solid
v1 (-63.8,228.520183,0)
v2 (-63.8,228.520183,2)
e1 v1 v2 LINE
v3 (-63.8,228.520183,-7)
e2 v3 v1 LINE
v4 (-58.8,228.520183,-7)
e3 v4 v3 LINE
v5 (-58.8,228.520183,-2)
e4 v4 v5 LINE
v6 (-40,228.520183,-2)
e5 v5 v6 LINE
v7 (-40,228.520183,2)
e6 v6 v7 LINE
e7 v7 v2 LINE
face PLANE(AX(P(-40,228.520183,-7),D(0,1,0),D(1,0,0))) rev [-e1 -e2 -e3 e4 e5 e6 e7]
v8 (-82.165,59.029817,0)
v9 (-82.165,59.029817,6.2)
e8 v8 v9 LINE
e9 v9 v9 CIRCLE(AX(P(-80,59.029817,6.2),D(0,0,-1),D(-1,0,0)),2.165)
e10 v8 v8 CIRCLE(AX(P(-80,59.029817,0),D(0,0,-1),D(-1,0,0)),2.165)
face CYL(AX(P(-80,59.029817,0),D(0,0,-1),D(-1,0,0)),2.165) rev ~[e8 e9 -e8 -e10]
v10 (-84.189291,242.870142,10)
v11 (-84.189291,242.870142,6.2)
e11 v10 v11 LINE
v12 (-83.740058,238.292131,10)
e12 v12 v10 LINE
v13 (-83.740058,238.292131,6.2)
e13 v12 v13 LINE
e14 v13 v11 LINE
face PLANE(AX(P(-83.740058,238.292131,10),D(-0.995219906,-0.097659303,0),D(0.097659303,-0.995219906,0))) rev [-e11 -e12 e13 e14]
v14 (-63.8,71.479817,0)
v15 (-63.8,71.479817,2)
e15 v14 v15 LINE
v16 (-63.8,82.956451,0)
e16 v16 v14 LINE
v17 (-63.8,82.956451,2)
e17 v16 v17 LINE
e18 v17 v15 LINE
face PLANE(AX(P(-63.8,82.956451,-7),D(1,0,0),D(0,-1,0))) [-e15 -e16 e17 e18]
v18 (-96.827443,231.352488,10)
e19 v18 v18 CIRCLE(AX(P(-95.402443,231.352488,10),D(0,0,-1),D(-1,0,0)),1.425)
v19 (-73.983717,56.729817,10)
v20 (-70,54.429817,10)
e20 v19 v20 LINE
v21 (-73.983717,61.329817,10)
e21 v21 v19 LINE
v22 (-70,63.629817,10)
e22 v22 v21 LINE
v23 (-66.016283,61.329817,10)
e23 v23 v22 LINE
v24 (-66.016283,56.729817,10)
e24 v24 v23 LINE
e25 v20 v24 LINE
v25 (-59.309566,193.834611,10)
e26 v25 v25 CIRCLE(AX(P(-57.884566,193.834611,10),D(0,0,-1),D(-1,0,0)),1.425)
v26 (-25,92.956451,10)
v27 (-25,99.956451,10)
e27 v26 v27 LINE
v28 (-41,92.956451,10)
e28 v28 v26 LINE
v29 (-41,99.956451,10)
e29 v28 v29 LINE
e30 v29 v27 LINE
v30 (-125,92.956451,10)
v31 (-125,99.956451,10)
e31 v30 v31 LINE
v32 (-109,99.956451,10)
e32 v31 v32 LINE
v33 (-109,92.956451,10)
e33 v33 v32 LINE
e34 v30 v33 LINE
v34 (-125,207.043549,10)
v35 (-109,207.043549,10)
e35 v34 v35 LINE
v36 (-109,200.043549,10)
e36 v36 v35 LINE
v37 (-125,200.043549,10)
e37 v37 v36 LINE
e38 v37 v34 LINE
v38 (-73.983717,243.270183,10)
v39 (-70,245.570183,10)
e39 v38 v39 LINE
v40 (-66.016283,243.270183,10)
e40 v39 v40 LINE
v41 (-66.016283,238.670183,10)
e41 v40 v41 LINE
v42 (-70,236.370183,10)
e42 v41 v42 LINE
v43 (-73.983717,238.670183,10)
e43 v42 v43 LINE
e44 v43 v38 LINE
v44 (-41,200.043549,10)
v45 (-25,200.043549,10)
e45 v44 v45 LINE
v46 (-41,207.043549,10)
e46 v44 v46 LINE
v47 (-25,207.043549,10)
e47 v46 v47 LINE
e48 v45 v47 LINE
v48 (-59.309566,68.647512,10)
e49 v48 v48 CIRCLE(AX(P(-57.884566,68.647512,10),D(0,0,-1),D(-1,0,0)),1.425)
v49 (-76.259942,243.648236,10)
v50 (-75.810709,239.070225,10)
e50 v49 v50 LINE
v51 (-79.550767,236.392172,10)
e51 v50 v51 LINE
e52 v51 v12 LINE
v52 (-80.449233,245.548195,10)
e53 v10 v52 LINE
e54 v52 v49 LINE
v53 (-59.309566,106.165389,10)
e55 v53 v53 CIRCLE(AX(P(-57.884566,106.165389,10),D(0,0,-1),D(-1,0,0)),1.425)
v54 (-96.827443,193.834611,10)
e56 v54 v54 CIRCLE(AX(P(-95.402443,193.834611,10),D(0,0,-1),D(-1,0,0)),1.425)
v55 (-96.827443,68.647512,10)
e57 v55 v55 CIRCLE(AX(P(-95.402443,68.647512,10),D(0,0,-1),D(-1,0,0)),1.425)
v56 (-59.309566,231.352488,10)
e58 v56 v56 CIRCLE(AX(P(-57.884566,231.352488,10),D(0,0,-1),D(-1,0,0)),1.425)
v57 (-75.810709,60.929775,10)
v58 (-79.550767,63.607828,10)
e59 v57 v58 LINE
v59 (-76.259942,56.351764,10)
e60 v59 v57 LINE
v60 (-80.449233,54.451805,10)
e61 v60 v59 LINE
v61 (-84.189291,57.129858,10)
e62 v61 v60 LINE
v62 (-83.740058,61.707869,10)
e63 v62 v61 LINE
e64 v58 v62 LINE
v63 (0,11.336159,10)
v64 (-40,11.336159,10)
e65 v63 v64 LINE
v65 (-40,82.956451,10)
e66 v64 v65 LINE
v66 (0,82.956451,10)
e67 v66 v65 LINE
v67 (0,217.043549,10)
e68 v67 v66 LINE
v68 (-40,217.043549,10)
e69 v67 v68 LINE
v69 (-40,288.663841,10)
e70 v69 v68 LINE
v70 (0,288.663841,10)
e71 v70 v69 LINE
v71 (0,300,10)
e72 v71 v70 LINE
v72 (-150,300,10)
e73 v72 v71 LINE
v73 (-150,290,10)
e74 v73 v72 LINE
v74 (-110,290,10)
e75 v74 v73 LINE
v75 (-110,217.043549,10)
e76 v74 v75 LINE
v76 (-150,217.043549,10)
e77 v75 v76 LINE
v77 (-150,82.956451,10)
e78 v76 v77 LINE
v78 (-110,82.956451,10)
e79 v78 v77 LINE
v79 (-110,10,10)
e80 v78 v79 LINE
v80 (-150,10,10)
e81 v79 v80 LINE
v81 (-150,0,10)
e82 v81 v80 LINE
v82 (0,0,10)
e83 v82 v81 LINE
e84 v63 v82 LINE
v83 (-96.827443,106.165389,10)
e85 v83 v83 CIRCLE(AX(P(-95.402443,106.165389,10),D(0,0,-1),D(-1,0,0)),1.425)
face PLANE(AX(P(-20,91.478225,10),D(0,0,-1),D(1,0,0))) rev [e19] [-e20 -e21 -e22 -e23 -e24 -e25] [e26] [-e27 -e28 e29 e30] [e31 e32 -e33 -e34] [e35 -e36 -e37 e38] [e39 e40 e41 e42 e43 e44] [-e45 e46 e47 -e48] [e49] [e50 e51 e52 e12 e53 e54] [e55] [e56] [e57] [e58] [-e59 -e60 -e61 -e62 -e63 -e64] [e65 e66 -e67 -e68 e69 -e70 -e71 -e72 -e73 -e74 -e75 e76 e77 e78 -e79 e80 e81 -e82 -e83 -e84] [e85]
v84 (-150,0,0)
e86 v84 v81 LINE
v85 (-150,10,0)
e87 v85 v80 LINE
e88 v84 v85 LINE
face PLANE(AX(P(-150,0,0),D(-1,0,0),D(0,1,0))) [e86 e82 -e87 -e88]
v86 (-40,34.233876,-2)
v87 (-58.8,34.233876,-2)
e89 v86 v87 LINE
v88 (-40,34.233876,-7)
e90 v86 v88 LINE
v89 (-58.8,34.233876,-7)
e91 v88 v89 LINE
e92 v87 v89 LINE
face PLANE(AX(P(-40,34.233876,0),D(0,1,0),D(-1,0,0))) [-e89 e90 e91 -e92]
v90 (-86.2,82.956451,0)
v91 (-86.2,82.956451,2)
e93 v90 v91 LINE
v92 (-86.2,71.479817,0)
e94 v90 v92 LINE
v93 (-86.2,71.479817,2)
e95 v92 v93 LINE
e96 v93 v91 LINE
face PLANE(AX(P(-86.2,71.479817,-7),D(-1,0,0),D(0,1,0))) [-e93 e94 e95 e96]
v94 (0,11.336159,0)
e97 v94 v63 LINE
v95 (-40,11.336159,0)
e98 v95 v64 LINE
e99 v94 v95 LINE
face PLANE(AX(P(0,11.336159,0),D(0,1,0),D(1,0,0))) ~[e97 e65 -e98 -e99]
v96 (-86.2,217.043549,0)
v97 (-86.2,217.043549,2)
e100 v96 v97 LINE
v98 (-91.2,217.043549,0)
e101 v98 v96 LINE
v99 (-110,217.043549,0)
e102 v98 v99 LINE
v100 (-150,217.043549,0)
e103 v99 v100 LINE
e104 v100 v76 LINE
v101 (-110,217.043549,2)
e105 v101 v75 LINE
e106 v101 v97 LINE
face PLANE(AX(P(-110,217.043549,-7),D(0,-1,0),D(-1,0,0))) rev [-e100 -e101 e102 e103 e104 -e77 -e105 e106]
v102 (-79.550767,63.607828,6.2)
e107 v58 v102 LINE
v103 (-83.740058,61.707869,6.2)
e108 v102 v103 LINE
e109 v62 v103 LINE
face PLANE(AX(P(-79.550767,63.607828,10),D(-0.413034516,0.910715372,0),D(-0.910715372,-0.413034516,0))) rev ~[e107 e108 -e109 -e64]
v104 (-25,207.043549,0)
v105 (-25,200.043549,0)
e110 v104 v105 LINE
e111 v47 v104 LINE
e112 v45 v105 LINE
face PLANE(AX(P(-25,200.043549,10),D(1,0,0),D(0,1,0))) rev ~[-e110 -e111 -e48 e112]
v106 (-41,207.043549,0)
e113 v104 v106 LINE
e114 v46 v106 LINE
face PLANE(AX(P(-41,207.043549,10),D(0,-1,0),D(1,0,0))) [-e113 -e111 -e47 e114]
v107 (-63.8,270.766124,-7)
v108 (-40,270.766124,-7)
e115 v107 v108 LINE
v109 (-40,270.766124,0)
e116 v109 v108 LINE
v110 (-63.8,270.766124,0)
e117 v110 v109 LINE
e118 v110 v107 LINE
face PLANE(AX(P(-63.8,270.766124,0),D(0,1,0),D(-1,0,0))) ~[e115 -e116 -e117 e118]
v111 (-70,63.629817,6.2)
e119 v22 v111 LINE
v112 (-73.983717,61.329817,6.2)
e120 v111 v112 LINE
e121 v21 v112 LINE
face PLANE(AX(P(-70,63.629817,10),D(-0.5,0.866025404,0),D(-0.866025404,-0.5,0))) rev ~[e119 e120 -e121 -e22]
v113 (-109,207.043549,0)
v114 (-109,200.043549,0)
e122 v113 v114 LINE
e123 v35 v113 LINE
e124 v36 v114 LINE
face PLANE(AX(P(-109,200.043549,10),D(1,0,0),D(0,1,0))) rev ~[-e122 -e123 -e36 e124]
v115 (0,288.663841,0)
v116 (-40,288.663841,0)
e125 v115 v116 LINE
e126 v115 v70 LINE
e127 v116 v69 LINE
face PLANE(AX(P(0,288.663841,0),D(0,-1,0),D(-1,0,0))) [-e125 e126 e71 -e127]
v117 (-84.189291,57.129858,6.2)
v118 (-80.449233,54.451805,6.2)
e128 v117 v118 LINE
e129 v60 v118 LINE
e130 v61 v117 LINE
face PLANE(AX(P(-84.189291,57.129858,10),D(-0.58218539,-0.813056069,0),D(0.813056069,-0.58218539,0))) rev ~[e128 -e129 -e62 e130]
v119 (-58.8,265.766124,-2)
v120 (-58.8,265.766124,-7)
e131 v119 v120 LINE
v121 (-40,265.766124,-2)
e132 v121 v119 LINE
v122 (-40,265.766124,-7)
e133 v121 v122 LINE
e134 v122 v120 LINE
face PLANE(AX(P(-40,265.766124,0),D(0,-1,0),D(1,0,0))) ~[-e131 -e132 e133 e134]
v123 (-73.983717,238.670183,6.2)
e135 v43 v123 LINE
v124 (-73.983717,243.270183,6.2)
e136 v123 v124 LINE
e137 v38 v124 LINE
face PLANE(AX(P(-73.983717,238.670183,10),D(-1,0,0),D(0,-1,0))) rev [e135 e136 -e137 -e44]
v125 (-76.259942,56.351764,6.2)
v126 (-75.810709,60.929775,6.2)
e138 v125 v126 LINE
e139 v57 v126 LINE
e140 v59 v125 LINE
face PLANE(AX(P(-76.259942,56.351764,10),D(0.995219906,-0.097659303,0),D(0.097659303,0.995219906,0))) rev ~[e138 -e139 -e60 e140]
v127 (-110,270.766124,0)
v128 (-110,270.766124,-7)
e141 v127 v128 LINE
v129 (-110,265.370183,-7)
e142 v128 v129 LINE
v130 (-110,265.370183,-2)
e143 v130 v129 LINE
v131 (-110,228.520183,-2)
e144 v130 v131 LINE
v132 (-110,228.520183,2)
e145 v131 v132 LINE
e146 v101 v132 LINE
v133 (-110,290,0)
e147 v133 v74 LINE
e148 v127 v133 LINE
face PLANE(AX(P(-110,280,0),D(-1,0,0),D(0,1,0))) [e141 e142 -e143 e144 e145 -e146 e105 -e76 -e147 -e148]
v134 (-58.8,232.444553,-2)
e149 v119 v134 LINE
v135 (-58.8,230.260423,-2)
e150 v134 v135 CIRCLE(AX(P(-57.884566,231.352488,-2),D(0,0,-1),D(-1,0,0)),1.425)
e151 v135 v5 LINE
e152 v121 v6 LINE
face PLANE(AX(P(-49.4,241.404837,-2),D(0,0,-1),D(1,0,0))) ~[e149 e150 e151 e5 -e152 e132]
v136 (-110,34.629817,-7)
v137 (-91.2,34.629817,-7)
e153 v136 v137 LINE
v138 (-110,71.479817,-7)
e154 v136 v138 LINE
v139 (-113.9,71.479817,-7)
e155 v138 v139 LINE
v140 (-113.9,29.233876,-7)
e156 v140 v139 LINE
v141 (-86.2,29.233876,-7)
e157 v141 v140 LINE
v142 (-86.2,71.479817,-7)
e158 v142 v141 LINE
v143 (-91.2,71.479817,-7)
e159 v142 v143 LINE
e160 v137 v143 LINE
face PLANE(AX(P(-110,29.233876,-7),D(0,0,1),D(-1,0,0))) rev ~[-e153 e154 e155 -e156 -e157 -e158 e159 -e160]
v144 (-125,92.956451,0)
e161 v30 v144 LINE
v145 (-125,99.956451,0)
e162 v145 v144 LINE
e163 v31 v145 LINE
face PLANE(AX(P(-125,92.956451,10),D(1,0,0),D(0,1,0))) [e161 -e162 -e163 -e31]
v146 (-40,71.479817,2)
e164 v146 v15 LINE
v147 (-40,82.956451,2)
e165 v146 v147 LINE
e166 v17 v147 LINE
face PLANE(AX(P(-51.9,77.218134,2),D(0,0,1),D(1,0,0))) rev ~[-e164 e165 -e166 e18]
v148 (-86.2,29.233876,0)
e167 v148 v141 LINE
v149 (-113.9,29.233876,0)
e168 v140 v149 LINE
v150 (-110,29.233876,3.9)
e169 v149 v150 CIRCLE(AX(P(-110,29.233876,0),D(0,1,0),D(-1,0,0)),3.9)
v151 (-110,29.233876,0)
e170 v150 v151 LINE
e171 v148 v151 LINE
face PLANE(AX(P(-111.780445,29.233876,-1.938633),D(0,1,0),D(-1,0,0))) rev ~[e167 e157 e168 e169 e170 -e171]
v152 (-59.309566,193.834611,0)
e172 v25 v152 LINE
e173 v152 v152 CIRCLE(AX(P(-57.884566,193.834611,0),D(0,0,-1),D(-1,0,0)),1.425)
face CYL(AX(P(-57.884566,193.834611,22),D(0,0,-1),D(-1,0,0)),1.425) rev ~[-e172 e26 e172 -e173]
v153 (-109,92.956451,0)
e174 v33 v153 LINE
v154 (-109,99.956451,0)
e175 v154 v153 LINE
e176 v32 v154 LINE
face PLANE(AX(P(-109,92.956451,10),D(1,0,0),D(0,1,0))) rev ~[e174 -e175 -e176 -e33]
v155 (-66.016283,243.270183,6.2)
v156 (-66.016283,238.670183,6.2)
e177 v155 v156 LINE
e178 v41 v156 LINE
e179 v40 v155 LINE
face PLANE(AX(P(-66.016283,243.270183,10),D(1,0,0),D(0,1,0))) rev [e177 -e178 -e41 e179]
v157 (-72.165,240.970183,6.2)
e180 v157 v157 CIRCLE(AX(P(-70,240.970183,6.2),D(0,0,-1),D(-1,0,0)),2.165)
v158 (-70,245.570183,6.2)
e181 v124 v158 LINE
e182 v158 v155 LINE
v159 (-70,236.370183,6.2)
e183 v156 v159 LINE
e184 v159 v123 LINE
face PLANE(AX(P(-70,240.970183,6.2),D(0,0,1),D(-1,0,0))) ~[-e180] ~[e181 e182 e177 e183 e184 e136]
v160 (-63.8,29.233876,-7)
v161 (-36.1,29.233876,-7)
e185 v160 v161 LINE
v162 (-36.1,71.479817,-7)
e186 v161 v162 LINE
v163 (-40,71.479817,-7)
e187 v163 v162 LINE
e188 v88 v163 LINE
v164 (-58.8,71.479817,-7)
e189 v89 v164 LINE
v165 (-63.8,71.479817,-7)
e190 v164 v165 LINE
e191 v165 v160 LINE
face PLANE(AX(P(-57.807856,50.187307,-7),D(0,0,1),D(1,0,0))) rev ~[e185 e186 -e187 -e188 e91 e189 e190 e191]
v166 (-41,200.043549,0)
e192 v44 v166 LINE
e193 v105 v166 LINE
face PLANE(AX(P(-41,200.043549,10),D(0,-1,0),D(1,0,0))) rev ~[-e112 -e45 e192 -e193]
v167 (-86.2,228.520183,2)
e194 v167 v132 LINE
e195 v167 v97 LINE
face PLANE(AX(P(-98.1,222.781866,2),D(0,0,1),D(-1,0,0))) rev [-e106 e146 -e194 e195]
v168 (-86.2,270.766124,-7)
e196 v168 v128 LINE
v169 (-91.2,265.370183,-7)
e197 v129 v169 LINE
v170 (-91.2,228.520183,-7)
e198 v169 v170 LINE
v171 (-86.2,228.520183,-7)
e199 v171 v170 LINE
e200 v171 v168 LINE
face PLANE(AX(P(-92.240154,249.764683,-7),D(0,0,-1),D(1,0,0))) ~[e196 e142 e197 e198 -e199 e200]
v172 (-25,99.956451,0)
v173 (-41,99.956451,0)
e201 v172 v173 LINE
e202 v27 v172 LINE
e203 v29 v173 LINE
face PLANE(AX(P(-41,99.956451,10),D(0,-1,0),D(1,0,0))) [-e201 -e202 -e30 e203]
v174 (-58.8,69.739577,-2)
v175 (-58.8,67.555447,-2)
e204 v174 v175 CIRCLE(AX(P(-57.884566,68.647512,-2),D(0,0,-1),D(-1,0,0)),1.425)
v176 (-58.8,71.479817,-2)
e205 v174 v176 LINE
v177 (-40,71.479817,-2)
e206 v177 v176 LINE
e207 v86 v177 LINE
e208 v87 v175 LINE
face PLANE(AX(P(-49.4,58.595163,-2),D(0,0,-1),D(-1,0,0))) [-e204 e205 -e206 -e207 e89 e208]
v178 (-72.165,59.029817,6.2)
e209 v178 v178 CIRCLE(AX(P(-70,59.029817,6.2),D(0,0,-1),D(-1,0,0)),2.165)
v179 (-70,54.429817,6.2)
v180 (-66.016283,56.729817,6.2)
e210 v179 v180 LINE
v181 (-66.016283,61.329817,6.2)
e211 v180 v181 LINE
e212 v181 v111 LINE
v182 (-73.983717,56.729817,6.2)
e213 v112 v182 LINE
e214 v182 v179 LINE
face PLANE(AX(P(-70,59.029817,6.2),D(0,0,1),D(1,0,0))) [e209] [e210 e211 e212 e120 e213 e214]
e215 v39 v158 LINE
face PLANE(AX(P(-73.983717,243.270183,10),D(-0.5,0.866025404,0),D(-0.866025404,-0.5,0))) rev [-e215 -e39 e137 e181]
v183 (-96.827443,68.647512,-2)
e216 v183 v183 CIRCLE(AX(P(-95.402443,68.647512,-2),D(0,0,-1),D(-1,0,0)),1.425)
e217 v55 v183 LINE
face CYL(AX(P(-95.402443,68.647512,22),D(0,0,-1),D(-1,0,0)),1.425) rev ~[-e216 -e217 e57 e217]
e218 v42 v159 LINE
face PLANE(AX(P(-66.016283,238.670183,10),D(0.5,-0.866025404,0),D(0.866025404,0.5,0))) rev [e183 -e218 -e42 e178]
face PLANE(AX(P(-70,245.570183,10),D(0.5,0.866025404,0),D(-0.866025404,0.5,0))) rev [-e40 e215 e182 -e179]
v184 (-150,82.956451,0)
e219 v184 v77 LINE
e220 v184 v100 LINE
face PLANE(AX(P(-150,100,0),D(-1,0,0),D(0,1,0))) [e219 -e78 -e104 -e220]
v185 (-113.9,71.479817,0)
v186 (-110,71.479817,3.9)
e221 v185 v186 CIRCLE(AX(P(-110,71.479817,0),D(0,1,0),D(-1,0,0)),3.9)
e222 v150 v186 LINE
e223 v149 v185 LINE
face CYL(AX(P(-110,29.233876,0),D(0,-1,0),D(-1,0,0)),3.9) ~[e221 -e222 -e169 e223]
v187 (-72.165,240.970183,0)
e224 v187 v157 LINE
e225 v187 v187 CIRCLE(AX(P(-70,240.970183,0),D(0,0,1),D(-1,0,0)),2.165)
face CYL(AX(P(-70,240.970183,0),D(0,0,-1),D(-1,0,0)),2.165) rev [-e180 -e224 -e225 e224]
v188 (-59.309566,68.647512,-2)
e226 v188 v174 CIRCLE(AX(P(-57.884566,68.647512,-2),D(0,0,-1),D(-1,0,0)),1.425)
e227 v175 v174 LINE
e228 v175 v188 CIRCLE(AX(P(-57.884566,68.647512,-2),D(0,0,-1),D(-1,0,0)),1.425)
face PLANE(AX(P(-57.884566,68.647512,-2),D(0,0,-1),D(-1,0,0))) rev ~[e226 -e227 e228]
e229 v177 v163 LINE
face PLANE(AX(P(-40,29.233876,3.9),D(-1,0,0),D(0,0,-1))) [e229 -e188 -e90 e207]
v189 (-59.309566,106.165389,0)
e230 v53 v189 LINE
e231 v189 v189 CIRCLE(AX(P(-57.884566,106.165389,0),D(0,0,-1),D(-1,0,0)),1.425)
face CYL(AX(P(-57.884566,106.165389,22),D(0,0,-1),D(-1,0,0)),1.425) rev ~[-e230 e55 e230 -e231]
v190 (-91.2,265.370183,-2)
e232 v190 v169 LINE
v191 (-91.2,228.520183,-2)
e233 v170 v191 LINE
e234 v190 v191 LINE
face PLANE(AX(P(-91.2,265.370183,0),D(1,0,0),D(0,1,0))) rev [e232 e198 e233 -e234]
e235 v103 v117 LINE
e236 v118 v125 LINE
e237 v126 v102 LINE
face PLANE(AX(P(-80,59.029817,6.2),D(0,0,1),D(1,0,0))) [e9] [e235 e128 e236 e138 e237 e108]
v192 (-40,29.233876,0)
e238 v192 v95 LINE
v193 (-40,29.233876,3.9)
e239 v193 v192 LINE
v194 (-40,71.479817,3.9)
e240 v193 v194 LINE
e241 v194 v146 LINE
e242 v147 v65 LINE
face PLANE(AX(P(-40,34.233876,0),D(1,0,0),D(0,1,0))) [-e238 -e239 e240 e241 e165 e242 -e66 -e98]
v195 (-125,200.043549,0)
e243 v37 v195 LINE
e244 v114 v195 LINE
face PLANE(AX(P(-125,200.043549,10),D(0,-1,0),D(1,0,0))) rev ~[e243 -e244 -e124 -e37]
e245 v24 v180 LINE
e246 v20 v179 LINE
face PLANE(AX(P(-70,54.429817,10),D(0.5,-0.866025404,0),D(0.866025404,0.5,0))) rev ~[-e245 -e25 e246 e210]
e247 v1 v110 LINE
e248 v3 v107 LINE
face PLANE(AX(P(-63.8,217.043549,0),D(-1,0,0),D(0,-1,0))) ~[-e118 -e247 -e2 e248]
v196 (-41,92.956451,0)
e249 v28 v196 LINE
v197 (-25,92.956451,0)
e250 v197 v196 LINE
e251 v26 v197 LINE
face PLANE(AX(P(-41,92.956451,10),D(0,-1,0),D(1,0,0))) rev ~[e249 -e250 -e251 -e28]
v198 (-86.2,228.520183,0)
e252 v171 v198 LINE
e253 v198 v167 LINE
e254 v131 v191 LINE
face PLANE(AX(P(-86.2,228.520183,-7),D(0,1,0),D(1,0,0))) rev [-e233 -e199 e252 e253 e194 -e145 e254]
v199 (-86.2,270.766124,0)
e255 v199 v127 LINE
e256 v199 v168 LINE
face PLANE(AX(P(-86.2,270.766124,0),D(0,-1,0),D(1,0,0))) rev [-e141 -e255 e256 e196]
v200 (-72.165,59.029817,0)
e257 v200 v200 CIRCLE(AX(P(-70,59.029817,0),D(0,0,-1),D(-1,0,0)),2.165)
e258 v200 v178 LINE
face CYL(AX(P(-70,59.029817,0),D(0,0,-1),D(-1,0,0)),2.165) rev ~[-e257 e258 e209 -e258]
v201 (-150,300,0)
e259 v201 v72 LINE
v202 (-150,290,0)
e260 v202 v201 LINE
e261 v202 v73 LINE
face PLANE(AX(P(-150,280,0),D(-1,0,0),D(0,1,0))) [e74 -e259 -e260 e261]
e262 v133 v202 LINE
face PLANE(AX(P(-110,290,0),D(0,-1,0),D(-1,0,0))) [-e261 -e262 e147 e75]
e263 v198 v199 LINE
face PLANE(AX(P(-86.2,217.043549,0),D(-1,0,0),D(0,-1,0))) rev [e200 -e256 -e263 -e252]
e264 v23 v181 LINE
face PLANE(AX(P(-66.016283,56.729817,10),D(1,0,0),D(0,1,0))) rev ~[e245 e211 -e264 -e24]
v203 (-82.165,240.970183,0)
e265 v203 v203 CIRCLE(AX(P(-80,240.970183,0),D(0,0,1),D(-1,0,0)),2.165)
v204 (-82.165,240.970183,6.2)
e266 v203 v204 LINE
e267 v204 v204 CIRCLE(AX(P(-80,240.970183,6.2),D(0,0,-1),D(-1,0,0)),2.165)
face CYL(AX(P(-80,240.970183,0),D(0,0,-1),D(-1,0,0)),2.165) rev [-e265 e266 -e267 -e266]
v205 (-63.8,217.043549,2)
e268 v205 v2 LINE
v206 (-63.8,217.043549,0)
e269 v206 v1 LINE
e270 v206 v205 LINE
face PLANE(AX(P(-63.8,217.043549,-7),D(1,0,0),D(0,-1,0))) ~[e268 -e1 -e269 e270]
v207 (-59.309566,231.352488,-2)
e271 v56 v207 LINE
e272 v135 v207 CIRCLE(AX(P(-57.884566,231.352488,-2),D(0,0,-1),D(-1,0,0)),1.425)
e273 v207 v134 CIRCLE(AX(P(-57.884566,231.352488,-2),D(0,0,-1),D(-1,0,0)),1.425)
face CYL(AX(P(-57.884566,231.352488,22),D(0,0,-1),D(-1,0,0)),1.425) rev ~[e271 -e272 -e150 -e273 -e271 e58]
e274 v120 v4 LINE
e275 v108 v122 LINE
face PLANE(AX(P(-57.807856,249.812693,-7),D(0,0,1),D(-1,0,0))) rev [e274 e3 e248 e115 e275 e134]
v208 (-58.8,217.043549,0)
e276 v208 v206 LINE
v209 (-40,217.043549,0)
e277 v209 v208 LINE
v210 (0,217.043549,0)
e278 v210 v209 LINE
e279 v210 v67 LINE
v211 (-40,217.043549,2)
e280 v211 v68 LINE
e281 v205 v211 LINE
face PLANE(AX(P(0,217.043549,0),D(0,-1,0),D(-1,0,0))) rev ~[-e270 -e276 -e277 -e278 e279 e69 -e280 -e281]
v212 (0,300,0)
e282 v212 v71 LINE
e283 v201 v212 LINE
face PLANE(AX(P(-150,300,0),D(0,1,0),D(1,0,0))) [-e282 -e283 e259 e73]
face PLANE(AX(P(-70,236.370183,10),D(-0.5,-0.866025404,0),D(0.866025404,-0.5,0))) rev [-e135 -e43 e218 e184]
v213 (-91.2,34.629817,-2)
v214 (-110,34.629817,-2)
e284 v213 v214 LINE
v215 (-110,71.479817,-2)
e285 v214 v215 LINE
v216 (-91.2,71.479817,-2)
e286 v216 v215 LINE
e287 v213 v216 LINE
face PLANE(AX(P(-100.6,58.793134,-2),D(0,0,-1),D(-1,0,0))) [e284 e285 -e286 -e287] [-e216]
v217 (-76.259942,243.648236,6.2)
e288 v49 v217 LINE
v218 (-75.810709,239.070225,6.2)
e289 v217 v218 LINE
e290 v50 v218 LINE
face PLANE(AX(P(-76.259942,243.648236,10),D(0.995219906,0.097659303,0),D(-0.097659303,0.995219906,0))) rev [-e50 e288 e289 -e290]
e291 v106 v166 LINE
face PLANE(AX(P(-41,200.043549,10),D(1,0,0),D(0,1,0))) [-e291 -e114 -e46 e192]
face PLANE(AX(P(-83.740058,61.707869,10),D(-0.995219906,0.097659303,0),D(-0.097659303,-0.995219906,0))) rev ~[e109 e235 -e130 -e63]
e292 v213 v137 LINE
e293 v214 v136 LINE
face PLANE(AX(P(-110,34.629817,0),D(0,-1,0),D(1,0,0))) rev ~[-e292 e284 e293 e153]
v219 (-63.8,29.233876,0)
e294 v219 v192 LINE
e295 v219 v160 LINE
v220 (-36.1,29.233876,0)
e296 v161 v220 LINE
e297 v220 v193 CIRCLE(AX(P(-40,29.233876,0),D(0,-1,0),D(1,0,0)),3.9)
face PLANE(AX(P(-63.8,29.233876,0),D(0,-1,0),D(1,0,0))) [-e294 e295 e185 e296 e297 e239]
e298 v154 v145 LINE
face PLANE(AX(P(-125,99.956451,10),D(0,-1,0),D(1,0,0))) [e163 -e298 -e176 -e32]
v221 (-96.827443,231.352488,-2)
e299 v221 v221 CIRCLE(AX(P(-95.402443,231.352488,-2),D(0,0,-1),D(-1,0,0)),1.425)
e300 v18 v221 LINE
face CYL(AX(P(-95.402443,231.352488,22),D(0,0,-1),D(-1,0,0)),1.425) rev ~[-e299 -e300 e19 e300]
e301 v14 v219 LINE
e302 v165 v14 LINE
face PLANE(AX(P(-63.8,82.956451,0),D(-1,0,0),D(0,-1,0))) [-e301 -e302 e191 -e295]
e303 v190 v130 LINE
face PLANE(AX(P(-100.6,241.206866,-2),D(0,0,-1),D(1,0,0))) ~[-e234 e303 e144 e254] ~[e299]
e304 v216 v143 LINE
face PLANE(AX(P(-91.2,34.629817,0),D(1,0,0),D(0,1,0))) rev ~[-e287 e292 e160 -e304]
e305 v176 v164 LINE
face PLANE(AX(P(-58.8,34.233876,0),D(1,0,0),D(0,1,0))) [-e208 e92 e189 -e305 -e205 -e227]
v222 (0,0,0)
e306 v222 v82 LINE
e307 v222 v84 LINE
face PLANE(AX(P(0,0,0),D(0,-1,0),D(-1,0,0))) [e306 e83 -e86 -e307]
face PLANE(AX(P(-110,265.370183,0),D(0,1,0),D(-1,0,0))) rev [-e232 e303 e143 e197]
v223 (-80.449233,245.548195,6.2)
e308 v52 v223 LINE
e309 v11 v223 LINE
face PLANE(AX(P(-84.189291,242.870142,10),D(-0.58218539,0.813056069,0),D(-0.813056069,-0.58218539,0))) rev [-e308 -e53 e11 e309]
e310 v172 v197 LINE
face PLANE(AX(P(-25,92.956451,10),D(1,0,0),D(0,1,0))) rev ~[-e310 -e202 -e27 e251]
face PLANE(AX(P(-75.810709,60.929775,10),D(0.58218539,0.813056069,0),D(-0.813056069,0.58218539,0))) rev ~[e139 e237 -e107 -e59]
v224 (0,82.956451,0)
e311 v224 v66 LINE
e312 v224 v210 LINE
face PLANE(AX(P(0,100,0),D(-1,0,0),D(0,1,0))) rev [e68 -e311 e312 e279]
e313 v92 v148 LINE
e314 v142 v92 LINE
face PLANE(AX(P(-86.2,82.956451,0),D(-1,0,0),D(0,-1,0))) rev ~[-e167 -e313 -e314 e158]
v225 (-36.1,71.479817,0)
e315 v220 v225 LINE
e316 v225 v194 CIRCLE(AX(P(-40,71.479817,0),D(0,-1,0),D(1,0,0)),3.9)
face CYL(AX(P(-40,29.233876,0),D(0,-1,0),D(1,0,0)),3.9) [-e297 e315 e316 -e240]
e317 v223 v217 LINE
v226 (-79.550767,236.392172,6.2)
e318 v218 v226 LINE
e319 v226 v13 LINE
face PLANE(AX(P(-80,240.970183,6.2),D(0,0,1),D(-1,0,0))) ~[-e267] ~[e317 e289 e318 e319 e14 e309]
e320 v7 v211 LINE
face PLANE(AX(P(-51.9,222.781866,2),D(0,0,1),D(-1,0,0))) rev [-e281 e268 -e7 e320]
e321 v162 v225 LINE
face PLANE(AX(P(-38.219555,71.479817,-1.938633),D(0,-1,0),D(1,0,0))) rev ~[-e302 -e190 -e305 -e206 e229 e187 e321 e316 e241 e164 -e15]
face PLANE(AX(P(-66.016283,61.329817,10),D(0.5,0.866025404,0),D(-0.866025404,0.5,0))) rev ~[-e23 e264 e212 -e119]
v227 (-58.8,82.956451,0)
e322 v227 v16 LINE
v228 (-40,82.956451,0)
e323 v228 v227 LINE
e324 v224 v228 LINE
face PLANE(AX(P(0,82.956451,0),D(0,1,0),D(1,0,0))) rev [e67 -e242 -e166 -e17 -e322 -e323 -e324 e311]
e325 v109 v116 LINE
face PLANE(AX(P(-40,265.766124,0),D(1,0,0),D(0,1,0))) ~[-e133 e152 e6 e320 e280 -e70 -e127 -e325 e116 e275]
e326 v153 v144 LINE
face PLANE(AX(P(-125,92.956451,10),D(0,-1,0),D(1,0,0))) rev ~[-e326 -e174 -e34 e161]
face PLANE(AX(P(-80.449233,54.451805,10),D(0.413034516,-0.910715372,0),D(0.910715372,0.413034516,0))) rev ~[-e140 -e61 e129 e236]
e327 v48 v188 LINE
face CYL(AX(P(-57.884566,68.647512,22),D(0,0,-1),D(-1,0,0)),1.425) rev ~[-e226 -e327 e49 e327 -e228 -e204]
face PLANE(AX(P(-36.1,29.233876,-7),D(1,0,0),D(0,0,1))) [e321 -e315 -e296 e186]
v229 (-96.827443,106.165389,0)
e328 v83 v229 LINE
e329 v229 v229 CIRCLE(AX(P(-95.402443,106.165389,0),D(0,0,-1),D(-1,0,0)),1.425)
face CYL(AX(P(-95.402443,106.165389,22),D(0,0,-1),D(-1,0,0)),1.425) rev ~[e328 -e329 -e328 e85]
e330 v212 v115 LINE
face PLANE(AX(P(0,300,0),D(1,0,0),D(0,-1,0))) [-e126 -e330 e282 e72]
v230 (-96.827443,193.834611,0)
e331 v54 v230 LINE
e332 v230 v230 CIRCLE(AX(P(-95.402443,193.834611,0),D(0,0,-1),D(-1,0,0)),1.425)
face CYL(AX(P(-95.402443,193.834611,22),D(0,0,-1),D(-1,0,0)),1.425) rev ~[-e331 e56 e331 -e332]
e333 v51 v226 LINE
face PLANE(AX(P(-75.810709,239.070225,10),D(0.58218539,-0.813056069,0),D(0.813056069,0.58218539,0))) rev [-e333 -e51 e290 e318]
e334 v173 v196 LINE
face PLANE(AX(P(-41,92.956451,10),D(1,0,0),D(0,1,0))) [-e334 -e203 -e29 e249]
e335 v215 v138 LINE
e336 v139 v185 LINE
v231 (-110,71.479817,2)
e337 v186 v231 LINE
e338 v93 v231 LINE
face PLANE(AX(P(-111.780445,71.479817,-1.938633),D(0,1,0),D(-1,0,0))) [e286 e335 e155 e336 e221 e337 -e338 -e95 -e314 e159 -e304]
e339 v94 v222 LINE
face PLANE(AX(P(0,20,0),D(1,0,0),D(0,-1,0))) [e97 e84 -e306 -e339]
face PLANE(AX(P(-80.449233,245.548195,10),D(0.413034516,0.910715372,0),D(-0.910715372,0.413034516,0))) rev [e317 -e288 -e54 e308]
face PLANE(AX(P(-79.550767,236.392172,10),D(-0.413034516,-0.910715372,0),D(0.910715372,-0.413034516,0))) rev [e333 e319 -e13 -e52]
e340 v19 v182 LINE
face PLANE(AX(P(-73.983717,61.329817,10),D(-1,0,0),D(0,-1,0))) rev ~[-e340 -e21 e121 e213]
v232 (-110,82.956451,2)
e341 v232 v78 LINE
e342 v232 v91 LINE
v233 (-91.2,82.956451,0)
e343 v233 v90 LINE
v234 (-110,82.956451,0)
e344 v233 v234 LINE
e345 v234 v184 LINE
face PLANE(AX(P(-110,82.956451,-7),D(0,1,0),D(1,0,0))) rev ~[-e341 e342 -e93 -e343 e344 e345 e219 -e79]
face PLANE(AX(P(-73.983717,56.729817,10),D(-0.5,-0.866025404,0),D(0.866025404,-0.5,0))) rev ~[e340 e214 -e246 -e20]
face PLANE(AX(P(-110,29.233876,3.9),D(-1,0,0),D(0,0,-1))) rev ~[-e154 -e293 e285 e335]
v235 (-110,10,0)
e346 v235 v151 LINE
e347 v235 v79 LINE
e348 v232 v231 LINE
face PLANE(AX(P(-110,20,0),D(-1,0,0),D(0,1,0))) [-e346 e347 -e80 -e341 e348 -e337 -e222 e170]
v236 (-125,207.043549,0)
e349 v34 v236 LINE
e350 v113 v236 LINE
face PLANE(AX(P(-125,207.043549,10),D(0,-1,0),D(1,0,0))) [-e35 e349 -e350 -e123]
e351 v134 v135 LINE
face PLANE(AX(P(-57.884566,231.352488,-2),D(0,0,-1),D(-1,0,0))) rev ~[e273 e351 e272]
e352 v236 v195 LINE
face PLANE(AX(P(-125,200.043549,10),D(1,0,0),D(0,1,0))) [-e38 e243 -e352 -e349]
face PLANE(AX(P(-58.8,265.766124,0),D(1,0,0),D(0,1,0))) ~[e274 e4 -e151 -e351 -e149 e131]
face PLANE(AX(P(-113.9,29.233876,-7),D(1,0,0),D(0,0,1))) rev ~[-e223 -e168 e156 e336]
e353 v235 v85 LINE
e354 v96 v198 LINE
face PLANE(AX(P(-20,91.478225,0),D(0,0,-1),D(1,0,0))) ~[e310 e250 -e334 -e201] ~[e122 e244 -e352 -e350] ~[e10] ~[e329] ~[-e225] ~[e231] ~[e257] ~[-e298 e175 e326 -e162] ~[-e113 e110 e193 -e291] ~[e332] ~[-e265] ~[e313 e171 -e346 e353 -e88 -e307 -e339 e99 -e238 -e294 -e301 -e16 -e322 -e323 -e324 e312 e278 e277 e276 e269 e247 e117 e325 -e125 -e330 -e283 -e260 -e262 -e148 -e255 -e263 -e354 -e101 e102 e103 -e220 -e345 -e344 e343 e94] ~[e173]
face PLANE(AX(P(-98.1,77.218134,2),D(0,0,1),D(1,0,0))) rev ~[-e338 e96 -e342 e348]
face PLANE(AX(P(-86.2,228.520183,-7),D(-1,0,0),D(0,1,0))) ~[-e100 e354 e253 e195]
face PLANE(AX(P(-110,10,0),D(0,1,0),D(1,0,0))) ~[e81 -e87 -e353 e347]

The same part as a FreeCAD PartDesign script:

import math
import FreeCAD as App
import Part
import Sketcher
from FreeCAD import Vector
Q = App.Units.Quantity


def add_polygon(sketch, points):
    """Adds a closed chain of lines whose ends are joined by coincident constraints."""
    first, n = sketch.GeometryCount, len(points)
    for a, b in zip(points, points[1:] + points[:1]):
        sketch.addGeometry(Part.LineSegment(App.Vector(*a, 0), App.Vector(*b, 0)), False)
    for i in range(n):
        sketch.addConstraint(Sketcher.Constraint("Coincident", first + i, 2, first + (i + 1) % n, 1))

doc = App.newDocument("Part")
body = doc.addObject("PartDesign::Body", "Body")

# Sketch on XY plane
sketch1 = body.newObject("Sketcher::SketchObject", "Sketch")
sketch1.AttachmentSupport = (doc.getObject("XY_Plane"), [""])
sketch1.MapMode = "FlatFace"
add_polygon(sketch1, [(-150, 0), (0, 0), (0, 20), (-40, 20), (-40, 100), (0, 100), (0, 200), (-40, 200), (-40, 280), (0, 280), (0, 300), (-150, 300), (-150, 280), (-110, 280), (-110, 200), (-150, 200), (-150, 100), (-110, 100), (-110, 20), (-150, 20)])  # lines 0-19
sketch1.addConstraint([
    Sketcher.Constraint("Horizontal", 0),
    Sketcher.Constraint("Vertical", 1),
    Sketcher.Constraint("Horizontal", 2),
    Sketcher.Constraint("Vertical", 3),
    Sketcher.Constraint("Horizontal", 4),
    Sketcher.Constraint("Vertical", 5),
    Sketcher.Constraint("Horizontal", 6),
    Sketcher.Constraint("Vertical", 7),
    Sketcher.Constraint("Horizontal", 8),
    Sketcher.Constraint("Vertical", 9),
    Sketcher.Constraint("Horizontal", 10),
    Sketcher.Constraint("Vertical", 11),
    Sketcher.Constraint("Horizontal", 12),
    Sketcher.Constraint("Vertical", 13),
    Sketcher.Constraint("Horizontal", 14),
    Sketcher.Constraint("Vertical", 15),
    Sketcher.Constraint("Horizontal", 16),
    Sketcher.Constraint("Vertical", 17),
    Sketcher.Constraint("Horizontal", 18),
    Sketcher.Constraint("Vertical", 19),
    Sketcher.Constraint("Coincident", 0, 2, -1, 1),
    Sketcher.Constraint("PointOnObject", 4, 2, -2),
    Sketcher.Constraint("PointOnObject", 8, 2, -2),
    Sketcher.Constraint("Horizontal", 8, 2, 11, 2),
    Sketcher.Constraint("Horizontal", 6, 2, 13, 2),
    Sketcher.Constraint("Horizontal", 4, 2, 15, 2),
    Sketcher.Constraint("Horizontal", 2, 2, 17, 2),
    Sketcher.Constraint("Vertical", 3, 2, 6, 2),
    Sketcher.Constraint("Vertical", 11, 2, 14, 2),
    Sketcher.Constraint("Vertical", 13, 2, 16, 2),
    Sketcher.Constraint("Vertical", 15, 2, 18, 2),
    Sketcher.Constraint("Equal", 8, 12),
    Sketcher.Constraint("Equal", 3, 7),
    Sketcher.Constraint("Equal", 1, 9),
    Sketcher.Constraint("DistanceX", 0, 1, 0, 2, Q("150 mm")),
    Sketcher.Constraint("DistanceX", 2, 2, 2, 1, Q("40 mm")),
    Sketcher.Constraint("DistanceY", 1, 1, 1, 2, Q("20 mm")),
    Sketcher.Constraint("DistanceY", 3, 1, 3, 2, Q("80 mm")),
    Sketcher.Constraint("DistanceY", 5, 1, 5, 2, Q("100 mm")),
])
pad1 = body.newObject("PartDesign::Pad", "Pad")
pad1.Profile = sketch1
pad1.Length = 10

# Sketch on XY plane
sketch2 = body.newObject("Sketcher::SketchObject", "Sketch001")
sketch2.AttachmentSupport = (doc.getObject("XY_Plane"), [""])
sketch2.MapMode = "FlatFace"
add_polygon(sketch2, [(-58.8, 34.233876), (-40, 34.233876), (-40, 29.233876), (-63.8, 29.233876), (-63.8, 82.956451), (-58.8, 82.956451)])  # lines 0-5
add_polygon(sketch2, [(-110, 34.629817), (-91.2, 34.629817), (-91.2, 82.956451), (-86.2, 82.956451), (-86.2, 29.233876), (-110, 29.233876)])  # lines 6-11
sketch2.addConstraint([
    Sketcher.Constraint("Horizontal", 0),
    Sketcher.Constraint("Vertical", 1),
    Sketcher.Constraint("Horizontal", 2),
    Sketcher.Constraint("Vertical", 3),
    Sketcher.Constraint("Horizontal", 4),
    Sketcher.Constraint("Vertical", 5),
    Sketcher.Constraint("Horizontal", 6),
    Sketcher.Constraint("Vertical", 7),
    Sketcher.Constraint("Horizontal", 8),
    Sketcher.Constraint("Vertical", 9),
    Sketcher.Constraint("Horizontal", 10),
    Sketcher.Constraint("Vertical", 11),
    Sketcher.Constraint("Horizontal", 4, 2, 7, 2),
    Sketcher.Constraint("Horizontal", 2, 2, 9, 2),
    Sketcher.Constraint("Equal", 0, 6),
    Sketcher.Constraint("Equal", 4, 8),
    Sketcher.Constraint("Equal", 8, 1),
    Sketcher.Constraint("DistanceX", 4, 1, 4, 2, Q("5 mm")),
    Sketcher.Constraint("DistanceX", 0, 1, 0, 2, Q("18.8 mm")),
    Sketcher.Constraint("DistanceX", 0, 2, -1, 1, Q("40 mm")),
    Sketcher.Constraint("DistanceX", 10, 2, -1, 1, Q("110 mm")),
    Sketcher.Constraint("DistanceY", 11, 1, 11, 2, Q("5.39594 mm")),
    Sketcher.Constraint("DistanceY", 3, 1, 3, 2, Q("53.722575 mm")),
    Sketcher.Constraint("DistanceY", -1, 1, 3, 2, Q("82.956451 mm")),
])
pad2 = body.newObject("PartDesign::Pad", "Pad001")
pad2.Profile = sketch2
pad2.Length = 7
pad2.Reversed = True

# Sketch on XY plane
sketch3 = body.newObject("Sketcher::SketchObject", "Sketch002")
sketch3.AttachmentSupport = (doc.getObject("XY_Plane"), [""])
sketch3.MapMode = "FlatFace"
add_polygon(sketch3, [(-40, 82.956451), (-40, 34.233876), (-58.8, 34.233876), (-58.8, 82.956451)])  # lines 0-3
add_polygon(sketch3, [(-91.2, 82.956451), (-91.2, 34.629817), (-110, 34.629817), (-110, 82.956451)])  # lines 4-7
sketch3.addConstraint([
    Sketcher.Constraint("Vertical", 0),
    Sketcher.Constraint("Horizontal", 1),
    Sketcher.Constraint("Vertical", 2),
    Sketcher.Constraint("Horizontal", 3),
    Sketcher.Constraint("Vertical", 4),
    Sketcher.Constraint("Horizontal", 5),
    Sketcher.Constraint("Vertical", 6),
    Sketcher.Constraint("Horizontal", 7),
    Sketcher.Constraint("Horizontal", 3, 2, 6, 2),
    Sketcher.Constraint("Equal", 3, 5),
    Sketcher.Constraint("DistanceX", 1, 2, 1, 1, Q("18.8 mm")),
    Sketcher.Constraint("DistanceX", 0, 2, -1, 1, Q("40 mm")),
    Sketcher.Constraint("DistanceX", 5, 2, -1, 1, Q("110 mm")),
    Sketcher.Constraint("DistanceY", 0, 2, 0, 1, Q("48.722575 mm")),
    Sketcher.Constraint("DistanceY", 4, 2, 4, 1, Q("48.326634 mm")),
    Sketcher.Constraint("DistanceY", -1, 1, 2, 2, Q("82.956451 mm")),
])
pad3 = body.newObject("PartDesign::Pad", "Pad002")
pad3.Profile = sketch3
pad3.Length = 2
pad3.Reversed = True

# Sketch on XY plane
sketch4 = body.newObject("Sketcher::SketchObject", "Sketch003")
sketch4.AttachmentSupport = (doc.getObject("XY_Plane"), [""])
sketch4.MapMode = "FlatFace"
sketch4.AttachmentOffset = App.Placement(Vector(0, 0, -7), App.Rotation())
add_polygon(sketch4, [(-63.8, 82.956451), (-40, 82.956451), (-40, 71.479817), (-63.8, 71.479817)])  # lines 0-3
add_polygon(sketch4, [(-110, 82.956451), (-86.2, 82.956451), (-86.2, 71.479817), (-110, 71.479817)])  # lines 4-7
sketch4.addConstraint([
    Sketcher.Constraint("Horizontal", 0),
    Sketcher.Constraint("Vertical", 1),
    Sketcher.Constraint("Horizontal", 2),
    Sketcher.Constraint("Vertical", 3),
    Sketcher.Constraint("Horizontal", 4),
    Sketcher.Constraint("Vertical", 5),
    Sketcher.Constraint("Horizontal", 6),
    Sketcher.Constraint("Vertical", 7),
    Sketcher.Constraint("Horizontal", 3, 2, 4, 2),
    Sketcher.Constraint("Horizontal", 2, 2, 5, 2),
    Sketcher.Constraint("Equal", 2, 4),
    Sketcher.Constraint("DistanceX", 0, 1, 0, 2, Q("23.8 mm")),
    Sketcher.Constraint("DistanceX", 0, 2, -1, 1, Q("40 mm")),
    Sketcher.Constraint("DistanceX", 6, 2, -1, 1, Q("110 mm")),
    Sketcher.Constraint("DistanceY", 1, 2, 1, 1, Q("11.476634 mm")),
    Sketcher.Constraint("DistanceY", -1, 1, 0, 2, Q("82.956451 mm")),
])
pocket1 = body.newObject("PartDesign::Pocket", "Pocket")
pocket1.Profile = sketch4
pocket1.Length = 9
pocket1.Reversed = True

# Sketch on XY plane
sketch5 = body.newObject("Sketcher::SketchObject", "Sketch004")
sketch5.AttachmentSupport = (doc.getObject("XY_Plane"), [""])
sketch5.MapMode = "FlatFace"
sketch5.addGeometry([
    Part.Circle(Vector(-70, 59.029817, 0), Vector(0, 0, 1), 2.165),
    Part.Circle(Vector(-80, 59.029817, 0), Vector(0, 0, 1), 2.165),
], False)
sketch5.addConstraint([
    Sketcher.Constraint("Equal", 0, 1),
    Sketcher.Constraint("Horizontal", 0, 3, 1, 3),
    Sketcher.Constraint("Diameter", 0, Q("4.33 mm")),
    Sketcher.Constraint("DistanceX", 0, 3, -1, 1, Q("70 mm")),
    Sketcher.Constraint("DistanceX", 1, 3, -1, 1, Q("80 mm")),
    Sketcher.Constraint("DistanceY", -1, 1, 0, 3, Q("59.029817 mm")),
])
pocket2 = body.newObject("PartDesign::Pocket", "Pocket001")
pocket2.Profile = sketch5
pocket2.Type = "ThroughAll"
pocket2.Reversed = True

# Sketch on XY plane
sketch6 = body.newObject("Sketcher::SketchObject", "Sketch005")
sketch6.AttachmentSupport = (doc.getObject("XY_Plane"), [""])
sketch6.MapMode = "FlatFace"
sketch6.AttachmentOffset = App.Placement(Vector(0, 0, 10), App.Rotation())
add_polygon(sketch6, [(-83.740058, 61.707869), (-84.189291, 57.129858), (-80.449233, 54.451805), (-76.259942, 56.351764), (-75.810709, 60.929775), (-79.550767, 63.607828)])  # lines 0-5
add_polygon(sketch6, [(-70, 63.629817), (-73.983717, 61.329817), (-73.983717, 56.729817), (-70, 54.429817), (-66.016283, 56.729817), (-66.016283, 61.329817)])  # lines 6-11
sketch6.addConstraint([
    Sketcher.Constraint("Vertical", 7),
    Sketcher.Constraint("Vertical", 10),
    Sketcher.Constraint("Parallel", 0, 3),
    Sketcher.Constraint("Parallel", 1, 4),
    Sketcher.Constraint("Parallel", 2, 5),
    Sketcher.Constraint("Parallel", 6, 9),
    Sketcher.Constraint("Parallel", 8, 11),
    Sketcher.Constraint("Horizontal", 7, 2, 9, 2),
    Sketcher.Constraint("Horizontal", 6, 2, 10, 2),
    Sketcher.Constraint("Vertical", 8, 2, 11, 2),
    Sketcher.Constraint("Equal", 0, 1),
    Sketcher.Constraint("Equal", 1, 2),
    Sketcher.Constraint("Equal", 2, 3),
    Sketcher.Constraint("Equal", 5, 6),
    Sketcher.Constraint("Angle", 6, Q("-150 deg")),
    Sketcher.Constraint("DistanceY", 7, 2, 7, 1, Q("4.6 mm")),
    Sketcher.Constraint("DistanceX", 8, 2, -1, 1, Q("70 mm")),
    Sketcher.Constraint("Distance", 0, Q("4.6 mm")),
    Sketcher.Constraint("DistanceX", 0, 2, -1, 1, Q("84.189291 mm")),
    Sketcher.Constraint("DistanceX", 3, 2, -1, 1, Q("75.810709 mm")),
    Sketcher.Constraint("DistanceY", -1, 1, 4, 2, Q("63.607828 mm")),
    Sketcher.Constraint("DistanceY", -1, 1, 5, 2, Q("61.707869 mm")),
    Sketcher.Constraint("DistanceX", 0, 2, 2, 2, Q("7.929349 mm")),
    Sketcher.Constraint("DistanceY", 3, 2, 6, 2, Q("0.400041 mm")),
])
pocket3 = body.newObject("PartDesign::Pocket", "Pocket002")
pocket3.Profile = sketch6
pocket3.Length = 3.8

# Sketch on XZ plane
sketch7 = body.newObject("Sketcher::SketchObject", "Sketch006")
sketch7.AttachmentSupport = (doc.getObject("XZ_Plane"), [""])
sketch7.MapMode = "FlatFace"
sketch7.AttachmentOffset = App.Placement(Vector(0, 0, -29.233876), App.Rotation())
sketch7.addGeometry([
    Part.LineSegment(Vector(-113.9, -7, 0), Vector(-110, -7, 0)),  # 0
    Part.LineSegment(Vector(-110, -7, 0), Vector(-110, 3.9, 0)),  # 1
    Part.ArcOfCircle(Part.Circle(Vector(-110, 0, 0), Vector(0, 0, 1), 3.9), math.radians(90), math.radians(180)),  # 2
    Part.LineSegment(Vector(-113.9, 0, 0), Vector(-113.9, -7, 0)),  # 3
    Part.LineSegment(Vector(-40, -7, 0), Vector(-36.1, -7, 0)),  # 4
    Part.LineSegment(Vector(-36.1, -7, 0), Vector(-36.1, 0, 0)),  # 5
    Part.ArcOfCircle(Part.Circle(Vector(-40, 0, 0), Vector(0, 0, 1), 3.9), math.radians(0), math.radians(90)),  # 6
    Part.LineSegment(Vector(-40, 3.9, 0), Vector(-40, -7, 0)),  # 7
], False)
sketch7.addConstraint([
    Sketcher.Constraint("Coincident", 0, 2, 1, 1),
    Sketcher.Constraint("Coincident", 1, 2, 2, 1),
    Sketcher.Constraint("Tangent", 2, 2, 3, 1),
    Sketcher.Constraint("Coincident", 3, 2, 0, 1),
    Sketcher.Constraint("Coincident", 4, 2, 5, 1),
    Sketcher.Constraint("Tangent", 5, 2, 6, 1),
    Sketcher.Constraint("Coincident", 6, 2, 7, 1),
    Sketcher.Constraint("Coincident", 7, 2, 4, 1),
    Sketcher.Constraint("Horizontal", 0),
    Sketcher.Constraint("Vertical", 1),
    Sketcher.Constraint("Vertical", 3),
    Sketcher.Constraint("Horizontal", 4),
    Sketcher.Constraint("Vertical", 5),
    Sketcher.Constraint("Vertical", 7),
    Sketcher.Constraint("Equal", 2, 6),
    Sketcher.Constraint("PointOnObject", 2, 3, -1),
    Sketcher.Constraint("PointOnObject", 6, 3, -1),
    Sketcher.Constraint("Horizontal", 3, 2, 4, 2),
    Sketcher.Constraint("Vertical", 2, 3, 0, 2),
    Sketcher.Constraint("Equal", 0, 4),
    Sketcher.Constraint("Radius", 2, Q("3.9 mm")),
    Sketcher.Constraint("DistanceY", 3, 2, 3, 1, Q("7 mm")),
    Sketcher.Constraint("DistanceX", 2, 3, -1, 1, Q("110 mm")),
    Sketcher.Constraint("DistanceX", 6, 3, -1, 1, Q("40 mm")),
])
pad4 = body.newObject("PartDesign::Pad", "Pad003")
pad4.Profile = sketch7
pad4.Length = 42.245941
pad4.Reversed = True
doc.recompute()

datumplane = body.newObject("PartDesign::Plane", "DatumPlane")
datumplane.AttachmentSupport = (doc.getObject("XZ_Plane"), [""])
datumplane.MapMode = "FlatFace"
datumplane.AttachmentOffset = App.Placement(Vector(0, 0, -150), App.Rotation())
mirrored = body.newObject("PartDesign::Mirrored", "Mirrored")
mirrored.Originals = [pad2, pad3, pocket1]
mirrored.MirrorPlane = (datumplane, [""])
body.Tip = mirrored
doc.recompute()

datumplane2 = body.newObject("PartDesign::Plane", "DatumPlane001")
datumplane2.AttachmentSupport = (doc.getObject("XZ_Plane"), [""])
datumplane2.MapMode = "FlatFace"
datumplane2.AttachmentOffset = App.Placement(Vector(0, 0, -150), App.Rotation())
mirrored2 = body.newObject("PartDesign::Mirrored", "Mirrored001")
mirrored2.Originals = [pocket2]
mirrored2.MirrorPlane = (datumplane2, [""])
body.Tip = mirrored2
doc.recompute()

datumplane3 = body.newObject("PartDesign::Plane", "DatumPlane002")
datumplane3.AttachmentSupport = (doc.getObject("XZ_Plane"), [""])
datumplane3.MapMode = "FlatFace"
datumplane3.AttachmentOffset = App.Placement(Vector(0, 0, -150), App.Rotation())
mirrored3 = body.newObject("PartDesign::Mirrored", "Mirrored002")
mirrored3.Originals = [pocket3]
mirrored3.MirrorPlane = (datumplane3, [""])
body.Tip = mirrored3

# Sketch on XY plane
sketch8 = body.newObject("Sketcher::SketchObject", "Sketch007")
sketch8.AttachmentSupport = (doc.getObject("XY_Plane"), [""])
sketch8.MapMode = "FlatFace"
add_polygon(sketch8, [(0, 288.663841), (0, 280), (-40, 280), (-40, 288.663841)])  # lines 0-3
add_polygon(sketch8, [(-110, 290), (-110, 280), (-150, 280), (-150, 290)])  # lines 4-7
sketch8.addConstraint([
    Sketcher.Constraint("Vertical", 0),
    Sketcher.Constraint("Horizontal", 1),
    Sketcher.Constraint("Vertical", 2),
    Sketcher.Constraint("Horizontal", 3),
    Sketcher.Constraint("Vertical", 4),
    Sketcher.Constraint("Horizontal", 5),
    Sketcher.Constraint("Vertical", 6),
    Sketcher.Constraint("Horizontal", 7),
    Sketcher.Constraint("PointOnObject", 0, 2, -2),
    Sketcher.Constraint("Horizontal", 1, 2, 4, 2),
    Sketcher.Constraint("Equal", 3, 5),
    Sketcher.Constraint("DistanceX", 1, 2, 1, 1, Q("40 mm")),
    Sketcher.Constraint("DistanceY", 4, 2, 4, 1, Q("10 mm")),
    Sketcher.Constraint("DistanceY", -1, 1, 0, 2, Q("280 mm")),
    Sketcher.Constraint("DistanceX", 4, 2, -1, 1, Q("110 mm")),
    Sketcher.Constraint("DistanceY", 0, 2, 0, 1, Q("8.663841 mm")),
])
pocket4 = body.newObject("PartDesign::Pocket", "Pocket003")
pocket4.Profile = sketch8
pocket4.Type = "ThroughAll"
pocket4.Reversed = True
doc.recompute()

datumplane4 = body.newObject("PartDesign::Plane", "DatumPlane003")
datumplane4.AttachmentSupport = (doc.getObject("XZ_Plane"), [""])
datumplane4.MapMode = "FlatFace"
datumplane4.AttachmentOffset = App.Placement(Vector(0, 0, -150), App.Rotation())
mirrored4 = body.newObject("PartDesign::Mirrored", "Mirrored003")
mirrored4.Originals = [pocket4]
mirrored4.MirrorPlane = (datumplane4, [""])
body.Tip = mirrored4

# Sketch on XY plane
sketch9 = body.newObject("Sketcher::SketchObject", "Sketch008")
sketch9.AttachmentSupport = (doc.getObject("XY_Plane"), [""])
sketch9.MapMode = "FlatFace"
add_polygon(sketch9, [(0, 217.043549), (0, 200), (-40, 200), (-40, 217.043549)])  # lines 0-3
add_polygon(sketch9, [(-110, 217.043549), (-110, 200), (-150, 200), (-150, 217.043549)])  # lines 4-7
sketch9.addConstraint([
    Sketcher.Constraint("Vertical", 0),
    Sketcher.Constraint("Horizontal", 1),
    Sketcher.Constraint("Vertical", 2),
    Sketcher.Constraint("Horizontal", 3),
    Sketcher.Constraint("Vertical", 4),
    Sketcher.Constraint("Horizontal", 5),
    Sketcher.Constraint("Vertical", 6),
    Sketcher.Constraint("Horizontal", 7),
    Sketcher.Constraint("PointOnObject", 0, 2, -2),
    Sketcher.Constraint("Horizontal", 1, 2, 4, 2),
    Sketcher.Constraint("Horizontal", 3, 2, 6, 2),
    Sketcher.Constraint("Equal", 3, 5),
    Sketcher.Constraint("DistanceX", 1, 2, 1, 1, Q("40 mm")),
    Sketcher.Constraint("DistanceY", -1, 1, 0, 2, Q("200 mm")),
    Sketcher.Constraint("DistanceX", 4, 2, -1, 1, Q("110 mm")),
    Sketcher.Constraint("DistanceY", 0, 2, 0, 1, Q("17.043549 mm")),
])
pad5 = body.newObject("PartDesign::Pad", "Pad004")
pad5.Profile = sketch9
pad5.Type = "UpToLast"
doc.recompute()

datumplane5 = body.newObject("PartDesign::Plane", "DatumPlane004")
datumplane5.AttachmentSupport = (doc.getObject("XZ_Plane"), [""])
datumplane5.MapMode = "FlatFace"
datumplane5.AttachmentOffset = App.Placement(Vector(0, 0, -150), App.Rotation())
mirrored5 = body.newObject("PartDesign::Mirrored", "Mirrored004")
mirrored5.Originals = [pad5]
mirrored5.MirrorPlane = (datumplane5, [""])
body.Tip = mirrored5

# Sketch on XY plane
sketch10 = body.newObject("Sketcher::SketchObject", "Sketch009")
sketch10.AttachmentSupport = (doc.getObject("XY_Plane"), [""])
sketch10.MapMode = "FlatFace"
sketch10.AttachmentOffset = App.Placement(Vector(0, 0, 10), App.Rotation())
add_polygon(sketch10, [(-125, 207.043549), (-125, 200.043549), (-109, 200.043549), (-109, 207.043549)])  # lines 0-3
sketch10.addConstraint([
    Sketcher.Constraint("Vertical", 0),
    Sketcher.Constraint("Horizontal", 1),
    Sketcher.Constraint("Vertical", 2),
    Sketcher.Constraint("Horizontal", 3),
    Sketcher.Constraint("DistanceX", 1, 1, 1, 2, Q("16 mm")),
    Sketcher.Constraint("DistanceY", 0, 2, 0, 1, Q("7 mm")),
    Sketcher.Constraint("DistanceX", 0, 2, -1, 1, Q("125 mm")),
    Sketcher.Constraint("DistanceY", -1, 1, 0, 2, Q("200.043549 mm")),
])
pocket5 = body.newObject("PartDesign::Pocket", "Pocket004")
pocket5.Profile = sketch10
pocket5.Type = "UpToFirst"

# Sketch on XY plane
sketch11 = body.newObject("Sketcher::SketchObject", "Sketch010")
sketch11.AttachmentSupport = (doc.getObject("XY_Plane"), [""])
sketch11.MapMode = "FlatFace"
sketch11.AttachmentOffset = App.Placement(Vector(0, 0, 10), App.Rotation())
add_polygon(sketch11, [(-41, 207.043549), (-41, 200.043549), (-25, 200.043549), (-25, 207.043549)])  # lines 0-3
sketch11.addConstraint([
    Sketcher.Constraint("Vertical", 0),
    Sketcher.Constraint("Horizontal", 1),
    Sketcher.Constraint("Vertical", 2),
    Sketcher.Constraint("Horizontal", 3),
    Sketcher.Constraint("DistanceX", 1, 1, 1, 2, Q("16 mm")),
    Sketcher.Constraint("DistanceY", 0, 2, 0, 1, Q("7 mm")),
    Sketcher.Constraint("DistanceX", 0, 2, -1, 1, Q("41 mm")),
    Sketcher.Constraint("DistanceY", -1, 1, 0, 2, Q("200.043549 mm")),
])
pocket6 = body.newObject("PartDesign::Pocket", "Pocket005")
pocket6.Profile = sketch11
pocket6.Type = "UpToFirst"

# Sketch on XY plane
sketch12 = body.newObject("Sketcher::SketchObject", "Sketch011")
sketch12.AttachmentSupport = (doc.getObject("XY_Plane"), [""])
sketch12.MapMode = "FlatFace"
sketch12.AttachmentOffset = App.Placement(Vector(0, 0, 10), App.Rotation())
add_polygon(sketch12, [(-125, 99.956451), (-125, 92.956451), (-109, 92.956451), (-109, 99.956451)])  # lines 0-3
sketch12.addConstraint([
    Sketcher.Constraint("Vertical", 0),
    Sketcher.Constraint("Horizontal", 1),
    Sketcher.Constraint("Vertical", 2),
    Sketcher.Constraint("Horizontal", 3),
    Sketcher.Constraint("DistanceX", 1, 1, 1, 2, Q("16 mm")),
    Sketcher.Constraint("DistanceY", 0, 2, 0, 1, Q("7 mm")),
    Sketcher.Constraint("DistanceX", 0, 2, -1, 1, Q("125 mm")),
    Sketcher.Constraint("DistanceY", -1, 1, 0, 2, Q("92.956451 mm")),
])
pocket7 = body.newObject("PartDesign::Pocket", "Pocket006")
pocket7.Profile = sketch12
pocket7.Type = "UpToFirst"

# Sketch on XY plane
sketch13 = body.newObject("Sketcher::SketchObject", "Sketch012")
sketch13.AttachmentSupport = (doc.getObject("XY_Plane"), [""])
sketch13.MapMode = "FlatFace"
sketch13.AttachmentOffset = App.Placement(Vector(0, 0, 10), App.Rotation())
add_polygon(sketch13, [(-41, 99.956451), (-41, 92.956451), (-25, 92.956451), (-25, 99.956451)])  # lines 0-3
sketch13.addConstraint([
    Sketcher.Constraint("Vertical", 0),
    Sketcher.Constraint("Horizontal", 1),
    Sketcher.Constraint("Vertical", 2),
    Sketcher.Constraint("Horizontal", 3),
    Sketcher.Constraint("DistanceX", 1, 1, 1, 2, Q("16 mm")),
    Sketcher.Constraint("DistanceY", 0, 2, 0, 1, Q("7 mm")),
    Sketcher.Constraint("DistanceX", 0, 2, -1, 1, Q("41 mm")),
    Sketcher.Constraint("DistanceY", -1, 1, 0, 2, Q("92.956451 mm")),
])
pocket8 = body.newObject("PartDesign::Pocket", "Pocket007")
pocket8.Profile = sketch13
pocket8.Type = "UpToFirst"

# Sketch on XY plane
sketch14 = body.newObject("Sketcher::SketchObject", "Sketch013")
sketch14.AttachmentSupport = (doc.getObject("XY_Plane"), [""])
sketch14.MapMode = "FlatFace"
sketch14.AttachmentOffset = App.Placement(Vector(0, 0, 10), App.Rotation())
sketch14.addGeometry([
    Part.Circle(Vector(-57.884566, 231.352488, 0), Vector(0, 0, 1), 1.425),  # 0
    Part.Circle(Vector(-95.402443, 231.352488, 0), Vector(0, 0, 1), 1.425),  # 1
    Part.Circle(Vector(-95.402443, 193.834611, 0), Vector(0, 0, 1), 1.425),  # 2
    Part.Circle(Vector(-57.884566, 193.834611, 0), Vector(0, 0, 1), 1.425),  # 3
    Part.Circle(Vector(-95.402443, 68.647512, 0), Vector(0, 0, 1), 1.425),  # 4
    Part.Circle(Vector(-57.884566, 106.165389, 0), Vector(0, 0, 1), 1.425),  # 5
    Part.Circle(Vector(-57.884566, 68.647512, 0), Vector(0, 0, 1), 1.425),  # 6
    Part.Circle(Vector(-95.402443, 106.165389, 0), Vector(0, 0, 1), 1.425),  # 7
], False)
sketch14.addConstraint([
    Sketcher.Constraint("Equal", 0, 1),
    Sketcher.Constraint("Equal", 1, 2),
    Sketcher.Constraint("Equal", 2, 3),
    Sketcher.Constraint("Equal", 3, 4),
    Sketcher.Constraint("Equal", 4, 5),
    Sketcher.Constraint("Equal", 5, 6),
    Sketcher.Constraint("Equal", 6, 7),
    Sketcher.Constraint("Horizontal", 0, 3, 1, 3),
    Sketcher.Constraint("Horizontal", 2, 3, 3, 3),
    Sketcher.Constraint("Horizontal", 4, 3, 6, 3),
    Sketcher.Constraint("Horizontal", 5, 3, 7, 3),
    Sketcher.Constraint("Vertical", 1, 3, 2, 3),
    Sketcher.Constraint("Vertical", 0, 3, 3, 3),
    Sketcher.Constraint("Vertical", 2, 3, 4, 3),
    Sketcher.Constraint("Vertical", 3, 3, 5, 3),
    Sketcher.Constraint("Vertical", 5, 3, 6, 3),
    Sketcher.Constraint("Vertical", 4, 3, 7, 3),
    Sketcher.Constraint("Diameter", 0, Q("2.85 mm")),
    Sketcher.Constraint("DistanceY", 4, 3, 2, 3, Q("125.187099 mm")),
    Sketcher.Constraint("DistanceY", 5, 3, 0, 3, Q("125.187099 mm")),
    Sketcher.Constraint("DistanceY", -1, 1, 2, 3, Q("193.834611 mm")),
    Sketcher.Constraint("DistanceY", -1, 1, 5, 3, Q("106.165389 mm")),
    Sketcher.Constraint("DistanceX", 0, 3, -1, 1, Q("57.884566 mm")),
    Sketcher.Constraint("DistanceX", 1, 3, -1, 1, Q("95.402443 mm")),
])
doc.recompute()
hole = body.newObject("PartDesign::Hole", "Hole")
hole.Profile = sketch14
hole.ThreadType = "None"
hole.Diameter = 2.85
hole.DepthType = "Dimension"
hole.Depth = 12
hole.DrillPoint = "Flat"

doc.recompute()
